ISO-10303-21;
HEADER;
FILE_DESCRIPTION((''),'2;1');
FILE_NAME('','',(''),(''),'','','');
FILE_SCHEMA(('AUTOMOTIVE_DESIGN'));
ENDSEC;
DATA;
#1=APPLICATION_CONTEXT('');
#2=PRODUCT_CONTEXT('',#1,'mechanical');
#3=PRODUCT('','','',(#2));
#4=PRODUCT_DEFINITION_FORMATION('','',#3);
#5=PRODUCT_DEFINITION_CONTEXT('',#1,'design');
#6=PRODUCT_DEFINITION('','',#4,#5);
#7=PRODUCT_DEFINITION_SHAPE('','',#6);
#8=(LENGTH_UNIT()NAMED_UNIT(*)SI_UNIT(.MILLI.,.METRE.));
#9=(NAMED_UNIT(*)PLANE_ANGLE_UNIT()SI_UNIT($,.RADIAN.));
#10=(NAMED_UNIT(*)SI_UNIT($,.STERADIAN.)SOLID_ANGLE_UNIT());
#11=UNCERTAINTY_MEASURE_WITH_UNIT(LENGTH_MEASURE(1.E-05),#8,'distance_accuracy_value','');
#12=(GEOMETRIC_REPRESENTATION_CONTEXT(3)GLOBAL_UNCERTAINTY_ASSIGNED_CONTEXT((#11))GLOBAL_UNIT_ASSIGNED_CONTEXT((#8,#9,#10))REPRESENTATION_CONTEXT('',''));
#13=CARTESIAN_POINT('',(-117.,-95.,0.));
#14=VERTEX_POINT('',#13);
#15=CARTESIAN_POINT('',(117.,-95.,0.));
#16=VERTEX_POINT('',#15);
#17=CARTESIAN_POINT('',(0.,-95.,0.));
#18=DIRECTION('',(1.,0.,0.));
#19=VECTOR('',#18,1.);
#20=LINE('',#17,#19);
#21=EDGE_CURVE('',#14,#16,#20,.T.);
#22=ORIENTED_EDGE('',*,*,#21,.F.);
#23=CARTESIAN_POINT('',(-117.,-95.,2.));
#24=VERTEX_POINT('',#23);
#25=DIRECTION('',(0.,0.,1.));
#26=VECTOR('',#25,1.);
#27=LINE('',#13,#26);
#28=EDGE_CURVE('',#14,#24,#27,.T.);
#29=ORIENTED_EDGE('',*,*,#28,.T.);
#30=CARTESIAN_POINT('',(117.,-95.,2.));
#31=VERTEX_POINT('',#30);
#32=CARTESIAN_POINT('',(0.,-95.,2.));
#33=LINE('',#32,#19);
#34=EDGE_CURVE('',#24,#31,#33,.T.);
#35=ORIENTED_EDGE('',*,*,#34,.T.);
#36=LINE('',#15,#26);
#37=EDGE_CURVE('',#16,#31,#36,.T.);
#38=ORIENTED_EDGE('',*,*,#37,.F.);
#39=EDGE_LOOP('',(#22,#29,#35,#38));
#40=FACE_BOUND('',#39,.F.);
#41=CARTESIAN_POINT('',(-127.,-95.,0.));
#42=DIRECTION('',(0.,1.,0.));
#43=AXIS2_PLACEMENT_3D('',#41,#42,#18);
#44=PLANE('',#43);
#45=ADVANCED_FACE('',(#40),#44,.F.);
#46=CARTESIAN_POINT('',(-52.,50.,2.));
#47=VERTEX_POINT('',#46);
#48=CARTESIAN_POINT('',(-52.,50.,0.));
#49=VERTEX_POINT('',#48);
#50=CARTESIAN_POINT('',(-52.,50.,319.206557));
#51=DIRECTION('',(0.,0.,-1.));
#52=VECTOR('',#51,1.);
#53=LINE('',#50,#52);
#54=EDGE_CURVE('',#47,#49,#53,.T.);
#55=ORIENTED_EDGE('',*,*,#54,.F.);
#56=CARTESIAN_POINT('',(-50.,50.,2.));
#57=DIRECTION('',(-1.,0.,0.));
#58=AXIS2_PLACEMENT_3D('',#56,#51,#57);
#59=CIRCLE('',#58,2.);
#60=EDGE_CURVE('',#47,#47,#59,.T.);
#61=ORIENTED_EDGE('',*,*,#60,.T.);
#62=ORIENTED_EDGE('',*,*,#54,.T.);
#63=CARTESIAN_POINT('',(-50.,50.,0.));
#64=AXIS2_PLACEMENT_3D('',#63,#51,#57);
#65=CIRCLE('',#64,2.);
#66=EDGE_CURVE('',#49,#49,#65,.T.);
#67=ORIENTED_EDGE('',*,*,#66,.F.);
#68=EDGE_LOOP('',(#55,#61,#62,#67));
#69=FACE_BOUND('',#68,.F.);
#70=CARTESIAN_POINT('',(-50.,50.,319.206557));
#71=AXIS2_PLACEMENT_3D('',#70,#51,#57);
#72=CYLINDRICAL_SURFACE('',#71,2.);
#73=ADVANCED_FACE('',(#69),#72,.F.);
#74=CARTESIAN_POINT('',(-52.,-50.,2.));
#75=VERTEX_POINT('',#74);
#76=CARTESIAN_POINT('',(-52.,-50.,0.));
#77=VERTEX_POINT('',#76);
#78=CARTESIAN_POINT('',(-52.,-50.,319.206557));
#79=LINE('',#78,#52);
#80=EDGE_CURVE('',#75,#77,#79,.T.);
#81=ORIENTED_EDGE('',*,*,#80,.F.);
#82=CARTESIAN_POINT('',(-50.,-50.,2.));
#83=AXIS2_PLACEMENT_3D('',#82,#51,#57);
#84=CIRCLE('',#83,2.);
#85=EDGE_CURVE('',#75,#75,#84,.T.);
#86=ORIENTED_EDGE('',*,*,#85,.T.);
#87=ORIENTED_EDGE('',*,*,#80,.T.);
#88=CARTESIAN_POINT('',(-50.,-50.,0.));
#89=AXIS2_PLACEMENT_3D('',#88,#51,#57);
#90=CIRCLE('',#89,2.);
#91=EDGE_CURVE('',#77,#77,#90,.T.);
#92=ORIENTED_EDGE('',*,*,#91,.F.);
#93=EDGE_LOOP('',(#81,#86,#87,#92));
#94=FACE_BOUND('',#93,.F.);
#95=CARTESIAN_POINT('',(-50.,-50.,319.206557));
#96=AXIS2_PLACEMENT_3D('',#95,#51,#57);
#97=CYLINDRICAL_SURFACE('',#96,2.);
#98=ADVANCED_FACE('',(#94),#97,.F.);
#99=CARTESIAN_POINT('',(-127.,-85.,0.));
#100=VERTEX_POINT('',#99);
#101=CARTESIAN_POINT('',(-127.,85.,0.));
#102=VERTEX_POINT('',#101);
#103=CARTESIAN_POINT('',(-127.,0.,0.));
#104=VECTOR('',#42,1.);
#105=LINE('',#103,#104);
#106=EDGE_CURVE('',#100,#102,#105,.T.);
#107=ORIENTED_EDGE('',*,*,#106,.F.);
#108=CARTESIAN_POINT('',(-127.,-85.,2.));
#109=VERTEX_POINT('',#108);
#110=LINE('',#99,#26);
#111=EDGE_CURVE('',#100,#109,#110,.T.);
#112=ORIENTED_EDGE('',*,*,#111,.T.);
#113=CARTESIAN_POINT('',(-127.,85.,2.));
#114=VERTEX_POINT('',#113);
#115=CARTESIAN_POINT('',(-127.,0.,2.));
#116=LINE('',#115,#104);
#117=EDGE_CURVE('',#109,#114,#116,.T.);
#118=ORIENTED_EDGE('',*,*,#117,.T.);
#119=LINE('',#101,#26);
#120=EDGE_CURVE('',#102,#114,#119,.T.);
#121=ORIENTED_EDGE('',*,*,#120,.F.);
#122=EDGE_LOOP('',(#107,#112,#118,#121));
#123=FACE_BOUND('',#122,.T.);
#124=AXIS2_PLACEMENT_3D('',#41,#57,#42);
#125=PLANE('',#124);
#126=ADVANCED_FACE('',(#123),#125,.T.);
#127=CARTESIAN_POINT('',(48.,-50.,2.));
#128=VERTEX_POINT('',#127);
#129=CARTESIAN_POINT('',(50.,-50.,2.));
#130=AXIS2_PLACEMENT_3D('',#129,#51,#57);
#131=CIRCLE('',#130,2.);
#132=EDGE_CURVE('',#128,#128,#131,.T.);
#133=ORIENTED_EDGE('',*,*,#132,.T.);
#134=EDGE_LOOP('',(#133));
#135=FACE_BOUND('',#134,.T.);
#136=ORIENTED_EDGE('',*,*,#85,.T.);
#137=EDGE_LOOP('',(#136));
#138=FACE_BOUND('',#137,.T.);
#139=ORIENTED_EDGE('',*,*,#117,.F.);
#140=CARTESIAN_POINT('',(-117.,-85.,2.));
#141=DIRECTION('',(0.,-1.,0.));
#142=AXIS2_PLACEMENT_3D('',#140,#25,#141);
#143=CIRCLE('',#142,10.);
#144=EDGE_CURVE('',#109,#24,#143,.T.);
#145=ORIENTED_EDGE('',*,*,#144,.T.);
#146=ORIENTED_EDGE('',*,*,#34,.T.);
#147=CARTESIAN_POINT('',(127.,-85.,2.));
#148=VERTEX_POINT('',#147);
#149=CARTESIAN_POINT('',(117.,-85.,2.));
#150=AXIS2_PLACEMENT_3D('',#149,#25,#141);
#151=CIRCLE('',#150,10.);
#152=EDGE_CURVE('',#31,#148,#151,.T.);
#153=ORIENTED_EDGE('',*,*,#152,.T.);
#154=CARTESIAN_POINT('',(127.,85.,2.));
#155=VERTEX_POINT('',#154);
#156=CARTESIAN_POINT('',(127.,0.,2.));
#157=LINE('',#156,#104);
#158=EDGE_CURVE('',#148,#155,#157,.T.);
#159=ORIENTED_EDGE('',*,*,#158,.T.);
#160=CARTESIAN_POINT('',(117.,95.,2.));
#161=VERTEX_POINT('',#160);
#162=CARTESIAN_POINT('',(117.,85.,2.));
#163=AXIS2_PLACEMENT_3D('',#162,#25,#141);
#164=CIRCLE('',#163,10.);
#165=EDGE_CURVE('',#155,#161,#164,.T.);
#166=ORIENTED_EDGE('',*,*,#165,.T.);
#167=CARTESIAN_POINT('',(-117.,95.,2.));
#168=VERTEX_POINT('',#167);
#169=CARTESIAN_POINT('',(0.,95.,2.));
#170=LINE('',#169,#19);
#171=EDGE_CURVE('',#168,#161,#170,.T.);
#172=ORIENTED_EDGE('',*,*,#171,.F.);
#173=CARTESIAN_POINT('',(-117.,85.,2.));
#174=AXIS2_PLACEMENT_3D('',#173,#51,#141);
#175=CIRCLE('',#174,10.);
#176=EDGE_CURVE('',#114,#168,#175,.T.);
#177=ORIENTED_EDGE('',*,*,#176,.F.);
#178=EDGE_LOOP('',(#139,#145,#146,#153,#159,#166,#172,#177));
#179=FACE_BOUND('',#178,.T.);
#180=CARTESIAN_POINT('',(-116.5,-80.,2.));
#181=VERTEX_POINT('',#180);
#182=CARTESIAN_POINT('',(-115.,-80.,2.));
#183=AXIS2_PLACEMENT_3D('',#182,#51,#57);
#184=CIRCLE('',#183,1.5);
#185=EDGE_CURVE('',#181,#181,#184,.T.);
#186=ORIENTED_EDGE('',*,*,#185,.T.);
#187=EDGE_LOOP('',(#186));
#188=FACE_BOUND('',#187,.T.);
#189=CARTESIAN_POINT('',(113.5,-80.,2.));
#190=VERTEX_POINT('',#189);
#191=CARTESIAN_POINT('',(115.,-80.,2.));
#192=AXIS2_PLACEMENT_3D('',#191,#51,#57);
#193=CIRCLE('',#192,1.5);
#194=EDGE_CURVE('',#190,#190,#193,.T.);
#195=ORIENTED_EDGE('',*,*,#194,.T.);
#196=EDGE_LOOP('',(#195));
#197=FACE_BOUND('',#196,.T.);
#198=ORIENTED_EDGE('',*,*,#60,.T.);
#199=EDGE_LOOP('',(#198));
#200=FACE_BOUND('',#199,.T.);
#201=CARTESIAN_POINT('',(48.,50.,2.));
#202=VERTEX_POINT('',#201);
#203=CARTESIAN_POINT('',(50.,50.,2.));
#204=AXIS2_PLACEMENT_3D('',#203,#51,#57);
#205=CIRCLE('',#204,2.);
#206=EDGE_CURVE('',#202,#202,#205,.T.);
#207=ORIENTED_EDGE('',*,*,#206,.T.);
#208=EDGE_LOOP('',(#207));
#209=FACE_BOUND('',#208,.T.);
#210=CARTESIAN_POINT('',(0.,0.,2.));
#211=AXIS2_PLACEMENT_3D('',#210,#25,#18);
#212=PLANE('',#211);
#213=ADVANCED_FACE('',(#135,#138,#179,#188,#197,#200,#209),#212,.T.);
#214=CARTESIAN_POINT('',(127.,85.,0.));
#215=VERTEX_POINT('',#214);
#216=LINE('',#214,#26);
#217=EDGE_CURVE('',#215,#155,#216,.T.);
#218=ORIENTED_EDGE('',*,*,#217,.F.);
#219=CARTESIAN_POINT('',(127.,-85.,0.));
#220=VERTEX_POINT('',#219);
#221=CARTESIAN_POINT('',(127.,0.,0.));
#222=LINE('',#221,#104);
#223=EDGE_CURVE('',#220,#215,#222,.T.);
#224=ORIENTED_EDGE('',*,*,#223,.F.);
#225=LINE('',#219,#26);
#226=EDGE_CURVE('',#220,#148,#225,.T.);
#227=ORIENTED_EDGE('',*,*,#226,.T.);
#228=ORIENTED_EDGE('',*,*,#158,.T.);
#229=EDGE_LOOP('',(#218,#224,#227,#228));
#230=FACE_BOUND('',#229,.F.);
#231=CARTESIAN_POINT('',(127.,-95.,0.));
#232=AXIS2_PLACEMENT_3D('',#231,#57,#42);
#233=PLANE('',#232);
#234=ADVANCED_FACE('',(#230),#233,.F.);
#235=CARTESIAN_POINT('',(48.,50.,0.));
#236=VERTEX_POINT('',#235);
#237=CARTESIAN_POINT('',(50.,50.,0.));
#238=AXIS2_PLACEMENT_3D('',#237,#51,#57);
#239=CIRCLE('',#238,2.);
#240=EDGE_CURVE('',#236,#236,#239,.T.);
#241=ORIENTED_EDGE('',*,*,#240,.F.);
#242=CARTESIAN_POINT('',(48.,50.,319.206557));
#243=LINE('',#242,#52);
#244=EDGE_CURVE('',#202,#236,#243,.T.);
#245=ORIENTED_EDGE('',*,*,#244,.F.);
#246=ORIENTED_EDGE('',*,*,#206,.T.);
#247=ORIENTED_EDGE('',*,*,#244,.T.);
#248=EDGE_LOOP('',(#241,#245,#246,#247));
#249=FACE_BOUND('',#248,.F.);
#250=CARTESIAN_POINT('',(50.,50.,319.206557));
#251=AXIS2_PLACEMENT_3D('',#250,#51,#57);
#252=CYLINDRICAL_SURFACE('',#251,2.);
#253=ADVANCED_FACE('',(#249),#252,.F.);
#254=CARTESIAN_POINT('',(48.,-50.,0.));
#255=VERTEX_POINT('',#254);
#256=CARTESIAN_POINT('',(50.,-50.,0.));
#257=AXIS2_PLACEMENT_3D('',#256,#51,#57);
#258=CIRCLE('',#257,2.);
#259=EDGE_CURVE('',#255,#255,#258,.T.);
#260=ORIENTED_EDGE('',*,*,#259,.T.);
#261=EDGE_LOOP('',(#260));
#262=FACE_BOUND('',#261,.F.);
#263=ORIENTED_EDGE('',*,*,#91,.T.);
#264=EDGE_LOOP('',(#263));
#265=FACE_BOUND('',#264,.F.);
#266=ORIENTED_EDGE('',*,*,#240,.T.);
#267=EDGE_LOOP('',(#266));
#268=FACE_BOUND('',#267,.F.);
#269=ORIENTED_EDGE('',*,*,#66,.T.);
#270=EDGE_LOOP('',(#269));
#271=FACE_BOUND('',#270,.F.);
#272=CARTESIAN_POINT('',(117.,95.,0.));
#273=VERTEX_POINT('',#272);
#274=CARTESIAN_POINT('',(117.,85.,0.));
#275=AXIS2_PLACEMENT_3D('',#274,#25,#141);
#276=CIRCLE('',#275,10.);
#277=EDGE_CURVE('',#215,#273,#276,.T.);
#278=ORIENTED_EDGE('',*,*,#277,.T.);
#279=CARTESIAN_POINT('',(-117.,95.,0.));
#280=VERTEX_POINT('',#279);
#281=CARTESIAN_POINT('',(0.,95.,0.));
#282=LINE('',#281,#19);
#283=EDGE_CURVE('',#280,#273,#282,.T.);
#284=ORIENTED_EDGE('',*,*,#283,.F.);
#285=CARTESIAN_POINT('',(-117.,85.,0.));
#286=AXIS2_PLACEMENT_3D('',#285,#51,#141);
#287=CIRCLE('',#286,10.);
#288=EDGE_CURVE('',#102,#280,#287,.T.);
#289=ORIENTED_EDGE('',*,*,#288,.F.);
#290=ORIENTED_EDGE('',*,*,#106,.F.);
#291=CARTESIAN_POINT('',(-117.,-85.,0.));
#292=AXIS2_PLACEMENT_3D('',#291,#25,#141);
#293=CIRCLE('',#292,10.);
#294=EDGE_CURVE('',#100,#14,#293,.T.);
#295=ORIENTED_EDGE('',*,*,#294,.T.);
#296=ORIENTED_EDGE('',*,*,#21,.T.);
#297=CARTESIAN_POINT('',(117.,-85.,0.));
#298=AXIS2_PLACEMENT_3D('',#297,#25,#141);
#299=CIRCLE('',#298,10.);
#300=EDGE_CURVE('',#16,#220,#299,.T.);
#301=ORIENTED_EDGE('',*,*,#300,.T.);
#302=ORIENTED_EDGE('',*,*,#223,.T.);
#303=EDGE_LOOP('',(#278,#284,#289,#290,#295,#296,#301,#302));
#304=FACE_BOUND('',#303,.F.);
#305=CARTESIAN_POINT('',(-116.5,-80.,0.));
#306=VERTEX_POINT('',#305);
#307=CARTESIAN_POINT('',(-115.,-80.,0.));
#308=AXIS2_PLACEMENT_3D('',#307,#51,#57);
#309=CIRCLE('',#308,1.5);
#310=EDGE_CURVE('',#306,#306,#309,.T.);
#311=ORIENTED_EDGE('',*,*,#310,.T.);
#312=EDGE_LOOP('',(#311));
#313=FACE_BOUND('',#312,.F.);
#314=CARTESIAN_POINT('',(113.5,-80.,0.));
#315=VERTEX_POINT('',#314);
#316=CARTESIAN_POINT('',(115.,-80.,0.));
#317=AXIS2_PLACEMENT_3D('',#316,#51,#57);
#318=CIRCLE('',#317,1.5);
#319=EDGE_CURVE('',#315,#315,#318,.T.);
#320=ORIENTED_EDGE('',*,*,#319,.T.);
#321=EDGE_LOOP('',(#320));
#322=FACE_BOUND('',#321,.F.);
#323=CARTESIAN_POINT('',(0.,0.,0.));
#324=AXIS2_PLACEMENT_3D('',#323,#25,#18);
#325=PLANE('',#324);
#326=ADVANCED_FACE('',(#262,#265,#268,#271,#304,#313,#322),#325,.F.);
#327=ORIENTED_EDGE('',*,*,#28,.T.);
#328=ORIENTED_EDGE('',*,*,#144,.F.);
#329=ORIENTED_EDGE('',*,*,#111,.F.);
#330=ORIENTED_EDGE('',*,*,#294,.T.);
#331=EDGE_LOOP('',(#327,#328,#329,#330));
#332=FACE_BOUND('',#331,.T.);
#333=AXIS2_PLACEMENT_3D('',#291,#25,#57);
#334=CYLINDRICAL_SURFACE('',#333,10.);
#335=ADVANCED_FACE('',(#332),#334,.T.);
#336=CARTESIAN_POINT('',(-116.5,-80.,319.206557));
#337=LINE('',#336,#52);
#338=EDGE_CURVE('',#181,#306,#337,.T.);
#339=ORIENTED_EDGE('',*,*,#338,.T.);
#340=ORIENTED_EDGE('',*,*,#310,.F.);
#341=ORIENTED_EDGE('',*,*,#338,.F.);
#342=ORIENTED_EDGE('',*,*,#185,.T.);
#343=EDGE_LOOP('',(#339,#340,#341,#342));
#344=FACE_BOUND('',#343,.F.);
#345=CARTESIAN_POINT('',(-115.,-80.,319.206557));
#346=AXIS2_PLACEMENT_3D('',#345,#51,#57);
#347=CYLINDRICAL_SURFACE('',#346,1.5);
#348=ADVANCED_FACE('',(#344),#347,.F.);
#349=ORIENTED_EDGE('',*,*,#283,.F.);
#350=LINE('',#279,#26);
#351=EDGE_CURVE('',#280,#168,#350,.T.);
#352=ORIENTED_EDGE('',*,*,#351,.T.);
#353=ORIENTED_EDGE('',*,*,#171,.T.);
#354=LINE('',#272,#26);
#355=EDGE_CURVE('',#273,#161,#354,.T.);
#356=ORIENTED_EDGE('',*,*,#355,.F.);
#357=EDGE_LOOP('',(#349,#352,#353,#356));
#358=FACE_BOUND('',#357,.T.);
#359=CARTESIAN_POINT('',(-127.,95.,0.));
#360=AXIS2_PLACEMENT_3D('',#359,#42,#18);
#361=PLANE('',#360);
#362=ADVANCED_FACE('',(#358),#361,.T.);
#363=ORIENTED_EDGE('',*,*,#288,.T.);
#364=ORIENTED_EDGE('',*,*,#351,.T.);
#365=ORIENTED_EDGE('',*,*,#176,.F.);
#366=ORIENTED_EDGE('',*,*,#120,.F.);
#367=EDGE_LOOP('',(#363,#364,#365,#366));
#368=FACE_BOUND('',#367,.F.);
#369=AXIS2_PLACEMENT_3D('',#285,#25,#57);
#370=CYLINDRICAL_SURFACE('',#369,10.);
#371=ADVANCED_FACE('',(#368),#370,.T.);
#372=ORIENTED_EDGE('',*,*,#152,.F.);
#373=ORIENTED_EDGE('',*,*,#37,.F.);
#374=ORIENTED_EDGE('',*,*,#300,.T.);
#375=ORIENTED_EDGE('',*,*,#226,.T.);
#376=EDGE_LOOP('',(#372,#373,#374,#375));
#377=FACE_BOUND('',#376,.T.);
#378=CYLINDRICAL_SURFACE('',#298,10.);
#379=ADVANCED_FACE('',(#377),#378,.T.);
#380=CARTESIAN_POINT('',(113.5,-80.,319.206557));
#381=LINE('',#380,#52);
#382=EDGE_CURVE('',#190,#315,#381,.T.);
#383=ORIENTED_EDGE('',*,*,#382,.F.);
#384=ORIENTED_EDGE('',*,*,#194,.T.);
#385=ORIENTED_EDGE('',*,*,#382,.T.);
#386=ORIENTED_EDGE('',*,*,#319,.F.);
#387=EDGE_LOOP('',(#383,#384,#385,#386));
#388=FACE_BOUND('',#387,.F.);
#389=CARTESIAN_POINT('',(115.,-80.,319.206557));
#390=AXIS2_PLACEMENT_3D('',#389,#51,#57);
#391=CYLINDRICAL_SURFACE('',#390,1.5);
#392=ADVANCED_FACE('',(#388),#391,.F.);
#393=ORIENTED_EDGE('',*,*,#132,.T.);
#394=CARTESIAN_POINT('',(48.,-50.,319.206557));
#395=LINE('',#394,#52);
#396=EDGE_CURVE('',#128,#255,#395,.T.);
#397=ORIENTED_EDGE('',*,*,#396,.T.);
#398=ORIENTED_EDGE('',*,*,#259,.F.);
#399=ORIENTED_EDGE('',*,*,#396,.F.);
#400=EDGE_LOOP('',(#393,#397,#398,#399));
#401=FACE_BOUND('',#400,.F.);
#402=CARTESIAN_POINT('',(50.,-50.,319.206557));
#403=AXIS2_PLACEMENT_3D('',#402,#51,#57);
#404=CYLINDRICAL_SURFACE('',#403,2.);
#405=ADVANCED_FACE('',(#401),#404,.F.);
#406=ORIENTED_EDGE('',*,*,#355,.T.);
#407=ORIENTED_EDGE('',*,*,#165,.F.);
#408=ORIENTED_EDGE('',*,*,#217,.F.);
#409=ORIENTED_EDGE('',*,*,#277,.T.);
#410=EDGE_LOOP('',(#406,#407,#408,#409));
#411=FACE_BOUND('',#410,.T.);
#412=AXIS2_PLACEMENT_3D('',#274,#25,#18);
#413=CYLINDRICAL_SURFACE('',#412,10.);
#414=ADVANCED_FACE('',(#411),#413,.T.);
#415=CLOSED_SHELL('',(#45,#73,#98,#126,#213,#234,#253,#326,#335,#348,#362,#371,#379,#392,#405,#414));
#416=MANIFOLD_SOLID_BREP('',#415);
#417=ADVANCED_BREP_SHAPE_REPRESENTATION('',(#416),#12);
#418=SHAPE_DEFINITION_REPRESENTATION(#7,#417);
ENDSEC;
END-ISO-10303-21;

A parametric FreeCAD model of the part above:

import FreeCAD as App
import Part
import Sketcher

V = App.Vector


def edges_at(feature, points):
    """Names of the edges that pass closest to the given points."""
    edges = feature.Shape.Edges
    near = lambda p: min(range(len(edges)), key=lambda i: edges[i].distToShape(Part.Vertex(*p))[0])
    return sorted({f"Edge{near(p) + 1}" for p in points})


def add_polygon(sketch, points):
    """Adds a closed chain of lines whose ends are joined by coincident constraints."""
    first, n = sketch.GeometryCount, len(points)
    for a, b in zip(points, points[1:] + points[:1]):
        sketch.addGeometry(Part.LineSegment(App.Vector(*a, 0), App.Vector(*b, 0)), False)
    for i in range(n):
        sketch.addConstraint(Sketcher.Constraint("Coincident", first + i, 2, first + (i + 1) % n, 1))

doc = App.newDocument("Part")
body = doc.addObject("PartDesign::Body", "Body")

# Sketch on XY plane
sketch1 = doc.addObject("Sketcher::SketchObject", "Sketch")
body.addObject(sketch1)
sketch1.AttachmentSupport = (doc.XY_Plane, [""])
sketch1.MapMode = "FlatFace"
add_polygon(sketch1, [(-127, 95), (-127, -95), (127, -95), (127, 95)])  # lines 0-3
sketch1.addConstraint([
    Sketcher.Constraint("Vertical", 0),
    Sketcher.Constraint("Horizontal", 1),
    Sketcher.Constraint("Vertical", 2),
    Sketcher.Constraint("Horizontal", 3),
    Sketcher.Constraint("Symmetric", 0, 2, 2, 2, -1, 1),
    Sketcher.Constraint("DistanceX", 1, 1, 1, 2, 254.0),
    Sketcher.Constraint("DistanceY", 0, 2, 0, 1, 190.0),
])
pad1 = doc.addObject("PartDesign::Pad", "Pad")
body.addObject(pad1)
pad1.Profile = sketch1
pad1.Length = 2
doc.recompute()

fillet = doc.addObject("PartDesign::Fillet", "Fillet")
body.addObject(fillet)
fillet.Base = (pad1, edges_at(pad1, [
    (-127, -95, 1),
    (127, -95, 1),
    (-127, 95, 1),
    (127, 95, 1),
]))
fillet.Radius = 10

# Sketch on XY plane
sketch2 = doc.addObject("Sketcher::SketchObject", "Sketch001")
body.addObject(sketch2)
sketch2.AttachmentSupport = (doc.XY_Plane, [""])
sketch2.MapMode = "FlatFace"
sketch2.AttachmentOffset = App.Placement(V(0, 0, 2), App.Rotation())
sketch2.addGeometry([
    Part.Circle(V(-50, 50, 0), V(0, 0, 1), 2),
    Part.Circle(V(50, 50, 0), V(0, 0, 1), 2),
    Part.Circle(V(50, -50, 0), V(0, 0, 1), 2),
    Part.Circle(V(-50, -50, 0), V(0, 0, 1), 2),
], False)
sketch2.addConstraint([
    Sketcher.Constraint("Equal", 0, 1),
    Sketcher.Constraint("Equal", 1, 2),
    Sketcher.Constraint("Equal", 2, 3),
    Sketcher.Constraint("Symmetric", 0, 3, 2, 3, -1, 1),
    Sketcher.Constraint("Symmetric", 1, 3, 3, 3, -1, 1),
    Sketcher.Constraint("Symmetric", 0, 3, 1, 3, -2),
    Sketcher.Constraint("Diameter", 0, 4.0),
    Sketcher.Constraint("DistanceX", 0, 3, -1, 1, 50.0),
    Sketcher.Constraint("DistanceY", -1, 1, 0, 3, 50.0),
])
doc.recompute()
hole = doc.addObject("PartDesign::Hole", "Hole")
body.addObject(hole)
hole.Profile = sketch2
hole.ThreadType = "None"
hole.Diameter = 4
hole.DepthType = "ThroughAll"

# Sketch on XY plane
sketch3 = doc.addObject("Sketcher::SketchObject", "Sketch002")
body.addObject(sketch3)
sketch3.AttachmentSupport = (doc.XY_Plane, [""])
sketch3.MapMode = "FlatFace"
sketch3.AttachmentOffset = App.Placement(V(0, 0, 2), App.Rotation())
sketch3.addGeometry([
    Part.Circle(V(-115, -80, 0), V(0, 0, 1), 1.5),
    Part.Circle(V(115, -80, 0), V(0, 0, 1), 1.5),
], False)
sketch3.addConstraint([
    Sketcher.Constraint("Equal", 0, 1),
    Sketcher.Constraint("Symmetric", 0, 3, 1, 3, -2),
    Sketcher.Constraint("Diameter", 0, 3.0),
    Sketcher.Constraint("DistanceX", 0, 3, -1, 1, 115.0),
    Sketcher.Constraint("DistanceY", 0, 3, -1, 1, 80.0),
])
doc.recompute()
hole2 = doc.addObject("PartDesign::Hole", "Hole001")
body.addObject(hole2)
hole2.Profile = sketch3
hole2.ThreadType = "None"
hole2.Diameter = 3
hole2.DepthType = "ThroughAll"

doc.recompute()
